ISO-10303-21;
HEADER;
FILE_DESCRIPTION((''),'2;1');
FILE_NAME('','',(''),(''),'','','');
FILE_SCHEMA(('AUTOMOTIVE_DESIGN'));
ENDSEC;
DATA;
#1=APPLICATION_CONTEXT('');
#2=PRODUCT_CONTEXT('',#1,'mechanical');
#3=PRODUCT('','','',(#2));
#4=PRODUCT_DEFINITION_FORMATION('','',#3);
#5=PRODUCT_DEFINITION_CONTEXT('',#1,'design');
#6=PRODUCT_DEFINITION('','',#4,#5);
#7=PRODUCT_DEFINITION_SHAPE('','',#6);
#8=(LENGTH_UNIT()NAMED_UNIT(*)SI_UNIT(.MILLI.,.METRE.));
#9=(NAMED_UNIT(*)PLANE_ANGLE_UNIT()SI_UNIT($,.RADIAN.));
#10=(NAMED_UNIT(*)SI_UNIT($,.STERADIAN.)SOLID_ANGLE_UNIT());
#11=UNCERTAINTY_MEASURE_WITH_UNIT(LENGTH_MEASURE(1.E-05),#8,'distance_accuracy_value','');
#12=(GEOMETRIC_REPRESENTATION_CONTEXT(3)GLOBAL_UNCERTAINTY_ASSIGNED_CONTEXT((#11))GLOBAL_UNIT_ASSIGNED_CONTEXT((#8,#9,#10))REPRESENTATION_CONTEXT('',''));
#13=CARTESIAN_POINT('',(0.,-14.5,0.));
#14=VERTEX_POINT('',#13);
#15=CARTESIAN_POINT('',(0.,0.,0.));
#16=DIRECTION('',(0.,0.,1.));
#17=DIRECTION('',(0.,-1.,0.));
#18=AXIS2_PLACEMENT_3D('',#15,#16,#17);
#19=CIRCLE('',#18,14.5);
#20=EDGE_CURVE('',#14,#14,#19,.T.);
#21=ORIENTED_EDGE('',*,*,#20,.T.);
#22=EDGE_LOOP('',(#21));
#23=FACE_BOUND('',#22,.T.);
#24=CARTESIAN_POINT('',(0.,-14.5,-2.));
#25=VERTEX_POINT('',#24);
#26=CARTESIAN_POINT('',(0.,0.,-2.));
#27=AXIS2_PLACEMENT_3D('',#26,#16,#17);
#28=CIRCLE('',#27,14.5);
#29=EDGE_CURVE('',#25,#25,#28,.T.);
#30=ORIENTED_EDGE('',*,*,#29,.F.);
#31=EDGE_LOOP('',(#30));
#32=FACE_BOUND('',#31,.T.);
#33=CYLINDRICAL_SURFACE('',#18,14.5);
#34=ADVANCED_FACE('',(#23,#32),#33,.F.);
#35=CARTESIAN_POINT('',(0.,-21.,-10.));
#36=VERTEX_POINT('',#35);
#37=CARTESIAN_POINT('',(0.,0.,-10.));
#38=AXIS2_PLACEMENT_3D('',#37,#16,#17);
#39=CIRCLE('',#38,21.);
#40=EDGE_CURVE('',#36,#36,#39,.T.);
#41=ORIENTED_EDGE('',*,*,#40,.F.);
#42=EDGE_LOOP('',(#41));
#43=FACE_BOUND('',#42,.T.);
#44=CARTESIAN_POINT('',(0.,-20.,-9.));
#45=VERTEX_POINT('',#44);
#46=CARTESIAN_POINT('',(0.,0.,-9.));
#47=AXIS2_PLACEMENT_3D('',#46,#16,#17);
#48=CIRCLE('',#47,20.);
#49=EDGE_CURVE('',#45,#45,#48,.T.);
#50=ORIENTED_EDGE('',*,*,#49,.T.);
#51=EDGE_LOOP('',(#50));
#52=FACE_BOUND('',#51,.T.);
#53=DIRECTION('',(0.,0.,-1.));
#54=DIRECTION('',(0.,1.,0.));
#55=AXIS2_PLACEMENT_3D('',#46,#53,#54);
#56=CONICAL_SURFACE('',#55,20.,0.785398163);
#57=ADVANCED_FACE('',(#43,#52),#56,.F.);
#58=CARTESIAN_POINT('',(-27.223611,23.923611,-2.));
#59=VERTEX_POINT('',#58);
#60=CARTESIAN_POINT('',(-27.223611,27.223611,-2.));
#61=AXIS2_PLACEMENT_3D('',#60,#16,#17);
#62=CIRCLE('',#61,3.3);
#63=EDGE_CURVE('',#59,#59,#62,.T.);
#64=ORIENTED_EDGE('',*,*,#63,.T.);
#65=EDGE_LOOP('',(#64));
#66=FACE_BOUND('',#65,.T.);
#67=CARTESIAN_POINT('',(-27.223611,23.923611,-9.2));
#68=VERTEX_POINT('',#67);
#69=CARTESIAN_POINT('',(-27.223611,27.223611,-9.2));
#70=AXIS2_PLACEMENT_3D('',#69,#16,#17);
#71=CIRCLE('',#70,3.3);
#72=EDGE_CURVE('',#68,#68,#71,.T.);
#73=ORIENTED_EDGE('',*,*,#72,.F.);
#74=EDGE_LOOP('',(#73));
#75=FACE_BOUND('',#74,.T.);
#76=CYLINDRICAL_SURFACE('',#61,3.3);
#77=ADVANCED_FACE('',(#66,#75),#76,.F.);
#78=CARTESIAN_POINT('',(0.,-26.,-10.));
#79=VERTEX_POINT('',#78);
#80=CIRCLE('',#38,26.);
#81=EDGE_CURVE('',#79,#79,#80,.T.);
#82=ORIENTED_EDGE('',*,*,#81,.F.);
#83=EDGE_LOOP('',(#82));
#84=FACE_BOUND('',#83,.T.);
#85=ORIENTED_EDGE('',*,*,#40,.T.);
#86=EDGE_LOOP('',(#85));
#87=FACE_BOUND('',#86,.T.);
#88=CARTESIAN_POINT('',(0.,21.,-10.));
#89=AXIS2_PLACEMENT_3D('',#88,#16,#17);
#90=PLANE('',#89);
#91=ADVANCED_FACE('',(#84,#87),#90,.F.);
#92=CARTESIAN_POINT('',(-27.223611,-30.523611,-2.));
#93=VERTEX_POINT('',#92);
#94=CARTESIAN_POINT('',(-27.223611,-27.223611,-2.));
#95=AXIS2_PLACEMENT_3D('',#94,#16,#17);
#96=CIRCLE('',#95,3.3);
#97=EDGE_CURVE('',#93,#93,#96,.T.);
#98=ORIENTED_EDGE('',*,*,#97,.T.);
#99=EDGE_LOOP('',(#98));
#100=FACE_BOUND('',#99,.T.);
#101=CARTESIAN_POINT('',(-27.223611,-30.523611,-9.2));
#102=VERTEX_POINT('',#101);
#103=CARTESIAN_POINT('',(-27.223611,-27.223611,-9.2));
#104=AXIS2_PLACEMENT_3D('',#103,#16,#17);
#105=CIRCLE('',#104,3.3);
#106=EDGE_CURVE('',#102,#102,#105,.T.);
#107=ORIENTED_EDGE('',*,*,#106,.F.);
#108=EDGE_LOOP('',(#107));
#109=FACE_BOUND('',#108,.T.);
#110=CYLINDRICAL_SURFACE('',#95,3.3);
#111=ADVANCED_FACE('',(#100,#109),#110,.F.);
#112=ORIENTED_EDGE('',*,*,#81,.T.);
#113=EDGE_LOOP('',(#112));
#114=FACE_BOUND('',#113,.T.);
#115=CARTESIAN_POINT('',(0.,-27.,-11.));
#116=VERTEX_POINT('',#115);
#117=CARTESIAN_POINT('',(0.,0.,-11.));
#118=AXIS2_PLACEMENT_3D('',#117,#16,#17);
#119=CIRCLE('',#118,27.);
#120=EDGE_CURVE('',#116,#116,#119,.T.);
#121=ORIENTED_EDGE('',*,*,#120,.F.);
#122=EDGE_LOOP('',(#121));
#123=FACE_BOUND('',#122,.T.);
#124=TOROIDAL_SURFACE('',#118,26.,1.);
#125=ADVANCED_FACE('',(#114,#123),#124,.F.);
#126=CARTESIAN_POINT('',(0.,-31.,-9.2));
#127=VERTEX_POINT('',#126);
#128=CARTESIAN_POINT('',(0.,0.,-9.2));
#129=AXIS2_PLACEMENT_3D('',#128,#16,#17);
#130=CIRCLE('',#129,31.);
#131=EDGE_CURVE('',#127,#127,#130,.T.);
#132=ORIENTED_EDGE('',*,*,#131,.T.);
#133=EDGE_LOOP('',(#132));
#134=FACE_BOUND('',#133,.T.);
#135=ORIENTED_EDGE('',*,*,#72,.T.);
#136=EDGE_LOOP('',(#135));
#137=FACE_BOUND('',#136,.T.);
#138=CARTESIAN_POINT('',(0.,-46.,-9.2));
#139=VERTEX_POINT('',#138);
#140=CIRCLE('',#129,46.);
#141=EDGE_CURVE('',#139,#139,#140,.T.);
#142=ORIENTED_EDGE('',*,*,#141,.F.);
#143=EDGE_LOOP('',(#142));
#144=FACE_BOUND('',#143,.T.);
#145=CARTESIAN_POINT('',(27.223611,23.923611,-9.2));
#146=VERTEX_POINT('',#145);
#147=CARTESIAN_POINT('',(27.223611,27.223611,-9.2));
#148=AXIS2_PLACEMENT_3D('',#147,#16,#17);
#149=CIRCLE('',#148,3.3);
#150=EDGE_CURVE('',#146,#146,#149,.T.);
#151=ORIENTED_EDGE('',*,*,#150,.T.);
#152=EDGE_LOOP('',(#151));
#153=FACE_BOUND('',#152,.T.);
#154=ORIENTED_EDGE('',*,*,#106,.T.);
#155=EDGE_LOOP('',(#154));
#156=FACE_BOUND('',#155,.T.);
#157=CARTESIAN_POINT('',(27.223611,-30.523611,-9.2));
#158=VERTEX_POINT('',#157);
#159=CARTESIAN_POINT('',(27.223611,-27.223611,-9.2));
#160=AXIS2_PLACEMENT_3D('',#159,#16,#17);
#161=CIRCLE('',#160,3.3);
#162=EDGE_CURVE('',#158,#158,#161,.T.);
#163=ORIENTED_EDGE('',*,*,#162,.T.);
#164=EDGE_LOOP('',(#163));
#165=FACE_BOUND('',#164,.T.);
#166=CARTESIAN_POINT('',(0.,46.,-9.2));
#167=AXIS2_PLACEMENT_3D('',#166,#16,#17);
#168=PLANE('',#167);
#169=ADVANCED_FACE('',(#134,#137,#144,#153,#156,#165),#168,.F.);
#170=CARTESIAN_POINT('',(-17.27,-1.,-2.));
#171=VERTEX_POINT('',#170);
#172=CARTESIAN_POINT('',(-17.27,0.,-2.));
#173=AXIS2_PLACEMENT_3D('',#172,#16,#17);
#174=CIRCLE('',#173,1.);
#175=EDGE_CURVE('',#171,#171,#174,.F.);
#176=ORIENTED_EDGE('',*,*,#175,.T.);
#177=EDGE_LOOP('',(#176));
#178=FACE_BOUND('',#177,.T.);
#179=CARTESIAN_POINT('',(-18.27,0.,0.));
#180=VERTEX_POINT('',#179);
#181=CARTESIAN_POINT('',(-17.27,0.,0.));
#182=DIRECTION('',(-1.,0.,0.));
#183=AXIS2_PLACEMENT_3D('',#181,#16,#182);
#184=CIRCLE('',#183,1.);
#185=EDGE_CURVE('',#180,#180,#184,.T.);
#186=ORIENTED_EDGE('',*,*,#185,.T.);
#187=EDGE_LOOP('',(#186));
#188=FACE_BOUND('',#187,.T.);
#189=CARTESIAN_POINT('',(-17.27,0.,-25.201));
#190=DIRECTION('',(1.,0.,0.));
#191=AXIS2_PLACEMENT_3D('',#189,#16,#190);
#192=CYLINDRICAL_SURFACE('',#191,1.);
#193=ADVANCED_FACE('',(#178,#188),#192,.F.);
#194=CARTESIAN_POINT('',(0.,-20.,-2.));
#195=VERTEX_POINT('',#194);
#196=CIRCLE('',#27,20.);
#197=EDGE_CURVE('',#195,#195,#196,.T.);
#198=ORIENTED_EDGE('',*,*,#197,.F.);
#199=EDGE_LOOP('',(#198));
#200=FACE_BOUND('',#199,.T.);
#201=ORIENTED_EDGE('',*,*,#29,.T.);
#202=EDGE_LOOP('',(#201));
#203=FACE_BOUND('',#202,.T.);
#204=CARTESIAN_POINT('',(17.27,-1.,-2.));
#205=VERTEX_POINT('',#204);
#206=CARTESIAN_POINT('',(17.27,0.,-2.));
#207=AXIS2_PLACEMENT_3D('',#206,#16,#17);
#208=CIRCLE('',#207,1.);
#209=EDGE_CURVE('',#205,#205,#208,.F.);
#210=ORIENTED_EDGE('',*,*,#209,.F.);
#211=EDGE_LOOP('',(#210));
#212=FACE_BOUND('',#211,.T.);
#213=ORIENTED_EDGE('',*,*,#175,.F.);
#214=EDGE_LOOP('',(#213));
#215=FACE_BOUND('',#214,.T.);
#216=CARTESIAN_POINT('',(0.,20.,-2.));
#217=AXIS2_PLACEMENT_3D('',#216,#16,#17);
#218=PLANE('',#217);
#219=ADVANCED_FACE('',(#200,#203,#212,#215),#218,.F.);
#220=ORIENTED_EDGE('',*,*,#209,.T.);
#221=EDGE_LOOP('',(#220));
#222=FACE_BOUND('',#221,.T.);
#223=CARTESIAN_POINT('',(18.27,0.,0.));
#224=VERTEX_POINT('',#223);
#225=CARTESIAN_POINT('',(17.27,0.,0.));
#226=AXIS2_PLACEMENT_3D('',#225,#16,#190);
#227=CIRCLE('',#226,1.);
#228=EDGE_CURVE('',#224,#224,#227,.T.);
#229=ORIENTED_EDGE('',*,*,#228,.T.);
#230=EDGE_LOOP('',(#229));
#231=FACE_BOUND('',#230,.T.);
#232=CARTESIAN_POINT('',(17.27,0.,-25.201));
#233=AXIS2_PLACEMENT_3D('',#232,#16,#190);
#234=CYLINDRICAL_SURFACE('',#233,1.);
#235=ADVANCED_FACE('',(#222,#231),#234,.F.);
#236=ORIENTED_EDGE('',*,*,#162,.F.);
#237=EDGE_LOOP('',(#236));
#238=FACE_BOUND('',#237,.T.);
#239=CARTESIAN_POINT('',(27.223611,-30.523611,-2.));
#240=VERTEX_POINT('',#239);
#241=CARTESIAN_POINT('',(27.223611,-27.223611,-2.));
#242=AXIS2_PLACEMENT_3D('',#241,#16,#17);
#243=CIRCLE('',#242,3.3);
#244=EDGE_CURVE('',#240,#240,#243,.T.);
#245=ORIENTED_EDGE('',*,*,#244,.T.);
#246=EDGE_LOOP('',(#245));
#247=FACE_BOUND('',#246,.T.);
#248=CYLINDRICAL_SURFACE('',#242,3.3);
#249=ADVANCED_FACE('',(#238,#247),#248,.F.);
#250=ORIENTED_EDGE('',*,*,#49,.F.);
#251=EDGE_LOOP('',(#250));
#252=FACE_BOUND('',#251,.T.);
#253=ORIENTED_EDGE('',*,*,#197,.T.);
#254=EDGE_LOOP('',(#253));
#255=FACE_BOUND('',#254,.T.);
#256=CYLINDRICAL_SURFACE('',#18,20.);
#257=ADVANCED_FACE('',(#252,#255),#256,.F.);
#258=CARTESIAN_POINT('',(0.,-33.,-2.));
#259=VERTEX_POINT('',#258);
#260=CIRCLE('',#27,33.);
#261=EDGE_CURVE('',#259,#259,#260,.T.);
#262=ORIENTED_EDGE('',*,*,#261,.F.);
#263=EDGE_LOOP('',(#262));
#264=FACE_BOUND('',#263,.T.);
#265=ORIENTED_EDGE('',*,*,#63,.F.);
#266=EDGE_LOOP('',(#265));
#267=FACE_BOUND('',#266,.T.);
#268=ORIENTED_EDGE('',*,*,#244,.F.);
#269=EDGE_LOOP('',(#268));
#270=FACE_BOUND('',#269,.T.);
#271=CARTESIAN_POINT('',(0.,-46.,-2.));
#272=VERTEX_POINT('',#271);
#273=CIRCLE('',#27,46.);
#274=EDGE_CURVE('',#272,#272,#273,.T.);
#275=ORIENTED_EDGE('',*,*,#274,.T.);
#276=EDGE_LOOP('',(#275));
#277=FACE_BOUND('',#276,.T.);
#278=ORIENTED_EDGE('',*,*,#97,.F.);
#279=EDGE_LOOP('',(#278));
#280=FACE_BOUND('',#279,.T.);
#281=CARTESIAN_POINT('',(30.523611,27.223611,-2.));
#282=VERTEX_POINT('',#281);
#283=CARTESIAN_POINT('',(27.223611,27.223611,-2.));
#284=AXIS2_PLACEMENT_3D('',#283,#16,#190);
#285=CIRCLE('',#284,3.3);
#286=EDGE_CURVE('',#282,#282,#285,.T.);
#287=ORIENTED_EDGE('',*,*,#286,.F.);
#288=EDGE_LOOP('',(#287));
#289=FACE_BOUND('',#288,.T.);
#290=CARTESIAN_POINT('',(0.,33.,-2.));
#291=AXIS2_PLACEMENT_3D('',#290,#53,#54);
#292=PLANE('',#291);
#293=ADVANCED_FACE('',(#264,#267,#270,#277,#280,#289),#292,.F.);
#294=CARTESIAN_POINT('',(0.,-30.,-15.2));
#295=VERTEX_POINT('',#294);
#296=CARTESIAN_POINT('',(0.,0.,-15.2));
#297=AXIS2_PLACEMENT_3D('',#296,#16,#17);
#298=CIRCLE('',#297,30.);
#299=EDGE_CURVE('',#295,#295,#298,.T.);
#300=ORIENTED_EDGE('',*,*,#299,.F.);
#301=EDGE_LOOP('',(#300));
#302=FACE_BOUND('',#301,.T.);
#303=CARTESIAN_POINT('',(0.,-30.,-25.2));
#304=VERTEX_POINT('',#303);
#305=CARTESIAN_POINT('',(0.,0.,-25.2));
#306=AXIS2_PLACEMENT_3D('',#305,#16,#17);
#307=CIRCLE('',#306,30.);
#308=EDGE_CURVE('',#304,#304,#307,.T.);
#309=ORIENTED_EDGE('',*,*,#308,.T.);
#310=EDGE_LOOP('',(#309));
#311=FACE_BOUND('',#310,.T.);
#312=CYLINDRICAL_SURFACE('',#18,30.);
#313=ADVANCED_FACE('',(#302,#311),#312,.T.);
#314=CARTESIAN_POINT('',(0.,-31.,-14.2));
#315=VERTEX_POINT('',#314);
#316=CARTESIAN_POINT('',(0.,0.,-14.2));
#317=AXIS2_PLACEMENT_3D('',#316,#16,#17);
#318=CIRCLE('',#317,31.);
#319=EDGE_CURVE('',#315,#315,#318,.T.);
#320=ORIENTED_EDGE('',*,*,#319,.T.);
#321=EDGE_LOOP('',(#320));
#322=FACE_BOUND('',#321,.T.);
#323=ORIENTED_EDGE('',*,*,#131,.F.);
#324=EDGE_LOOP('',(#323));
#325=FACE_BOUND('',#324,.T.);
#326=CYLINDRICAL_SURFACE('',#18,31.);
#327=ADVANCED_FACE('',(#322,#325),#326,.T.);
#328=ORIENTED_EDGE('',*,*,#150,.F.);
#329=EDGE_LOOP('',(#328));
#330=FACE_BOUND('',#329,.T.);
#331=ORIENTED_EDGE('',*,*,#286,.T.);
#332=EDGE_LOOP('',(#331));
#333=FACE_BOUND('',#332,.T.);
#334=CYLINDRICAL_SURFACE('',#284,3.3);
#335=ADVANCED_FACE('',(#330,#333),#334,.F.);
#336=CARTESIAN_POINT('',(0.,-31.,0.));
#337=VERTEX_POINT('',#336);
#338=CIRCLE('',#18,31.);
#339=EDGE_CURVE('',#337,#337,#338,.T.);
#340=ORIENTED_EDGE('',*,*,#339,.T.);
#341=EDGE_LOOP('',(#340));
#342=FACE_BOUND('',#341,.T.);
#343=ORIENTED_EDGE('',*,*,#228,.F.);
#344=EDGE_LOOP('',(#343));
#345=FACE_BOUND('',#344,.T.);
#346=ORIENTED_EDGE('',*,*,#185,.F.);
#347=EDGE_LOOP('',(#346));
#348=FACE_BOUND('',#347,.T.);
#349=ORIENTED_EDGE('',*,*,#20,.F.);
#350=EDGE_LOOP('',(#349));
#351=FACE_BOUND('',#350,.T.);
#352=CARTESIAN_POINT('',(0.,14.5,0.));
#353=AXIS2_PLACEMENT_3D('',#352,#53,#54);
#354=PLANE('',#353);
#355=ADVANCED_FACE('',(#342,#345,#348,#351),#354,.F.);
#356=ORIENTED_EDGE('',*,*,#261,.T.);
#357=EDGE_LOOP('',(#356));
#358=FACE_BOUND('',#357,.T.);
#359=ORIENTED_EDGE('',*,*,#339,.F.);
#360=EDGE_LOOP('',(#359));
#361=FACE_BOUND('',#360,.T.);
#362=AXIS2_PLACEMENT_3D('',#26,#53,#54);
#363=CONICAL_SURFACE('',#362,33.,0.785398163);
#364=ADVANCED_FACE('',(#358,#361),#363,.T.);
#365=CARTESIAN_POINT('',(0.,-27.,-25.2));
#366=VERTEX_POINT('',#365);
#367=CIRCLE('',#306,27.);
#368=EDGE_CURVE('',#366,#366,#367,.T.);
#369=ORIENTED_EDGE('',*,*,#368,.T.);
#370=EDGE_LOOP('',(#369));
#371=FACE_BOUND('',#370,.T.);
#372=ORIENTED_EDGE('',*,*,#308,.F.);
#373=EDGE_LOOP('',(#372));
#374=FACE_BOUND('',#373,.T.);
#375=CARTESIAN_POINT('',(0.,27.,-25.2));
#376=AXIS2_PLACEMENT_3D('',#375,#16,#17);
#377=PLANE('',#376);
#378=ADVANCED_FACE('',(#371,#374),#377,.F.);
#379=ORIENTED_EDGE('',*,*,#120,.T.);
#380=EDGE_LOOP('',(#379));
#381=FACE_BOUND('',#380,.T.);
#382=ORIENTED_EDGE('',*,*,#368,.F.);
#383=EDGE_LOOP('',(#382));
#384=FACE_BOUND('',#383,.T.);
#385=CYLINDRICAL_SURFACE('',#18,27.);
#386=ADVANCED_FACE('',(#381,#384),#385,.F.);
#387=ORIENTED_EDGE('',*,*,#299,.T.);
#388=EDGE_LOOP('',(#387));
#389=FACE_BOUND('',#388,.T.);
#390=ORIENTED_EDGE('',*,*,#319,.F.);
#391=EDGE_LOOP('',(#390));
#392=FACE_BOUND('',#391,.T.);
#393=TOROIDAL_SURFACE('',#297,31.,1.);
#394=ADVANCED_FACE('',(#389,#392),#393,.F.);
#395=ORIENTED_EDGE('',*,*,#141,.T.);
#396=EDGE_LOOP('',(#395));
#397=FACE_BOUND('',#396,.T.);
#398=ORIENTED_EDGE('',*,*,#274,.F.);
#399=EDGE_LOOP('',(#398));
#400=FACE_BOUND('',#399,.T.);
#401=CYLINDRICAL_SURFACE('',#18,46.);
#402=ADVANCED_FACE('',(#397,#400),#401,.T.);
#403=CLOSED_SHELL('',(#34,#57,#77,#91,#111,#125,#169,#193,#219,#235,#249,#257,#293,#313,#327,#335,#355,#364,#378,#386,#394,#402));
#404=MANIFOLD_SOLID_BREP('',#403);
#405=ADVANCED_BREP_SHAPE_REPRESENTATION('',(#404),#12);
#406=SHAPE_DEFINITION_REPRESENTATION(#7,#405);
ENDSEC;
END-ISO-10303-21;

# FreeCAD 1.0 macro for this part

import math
import FreeCAD as App
import Part
import Sketcher
Q = App.Units.Quantity

doc = App.newDocument("Part")
body = doc.addObject("PartDesign::Body", "Body")

# Sketch on YZ plane
sketch1 = body.newObject("Sketcher::SketchObject", "Sketch")
sketch1.AttachmentSupport = (doc.getObject("YZ_Plane"), [""])
sketch1.MapMode = "FlatFace"
sketch1.addGeometry(Part.LineSegment(App.Vector(31, 0, 0), App.Vector(14.5, 0, 0)), False)
sketch1.addGeometry(Part.LineSegment(App.Vector(14.5, 0, 0), App.Vector(14.5, -2, 0)), False)
sketch1.addGeometry(Part.LineSegment(App.Vector(14.5, -2, 0), App.Vector(20, -2, 0)), False)
sketch1.addGeometry(Part.LineSegment(App.Vector(20, -2, 0), App.Vector(20, -9, 0)), False)
sketch1.addGeometry(Part.LineSegment(App.Vector(20, -9, 0), App.Vector(21, -10, 0)), False)
sketch1.addGeometry(Part.LineSegment(App.Vector(21, -10, 0), App.Vector(26, -10, 0)), False)
sketch1.addGeometry(Part.ArcOfCircle(Part.Circle(App.Vector(26, -11, 0), App.Vector(0, 0, 1), 1), math.radians(0), math.radians(90)), False)
sketch1.addGeometry(Part.LineSegment(App.Vector(27, -11, 0), App.Vector(27, -25.2, 0)), False)
sketch1.addGeometry(Part.LineSegment(App.Vector(27, -25.2, 0), App.Vector(30, -25.2, 0)), False)
sketch1.addGeometry(Part.LineSegment(App.Vector(30, -25.2, 0), App.Vector(30, -15.2, 0)), False)
sketch1.addGeometry(Part.ArcOfCircle(Part.Circle(App.Vector(31, -15.2, 0), App.Vector(0, 0, 1), 1), math.radians(90), math.radians(180)), False)
sketch1.addGeometry(Part.LineSegment(App.Vector(31, -14.2, 0), App.Vector(31, -9.2, 0)), False)
sketch1.addGeometry(Part.LineSegment(App.Vector(31, -9.2, 0), App.Vector(46, -9.2, 0)), False)
sketch1.addGeometry(Part.LineSegment(App.Vector(46, -9.2, 0), App.Vector(46, -2, 0)), False)
sketch1.addGeometry(Part.LineSegment(App.Vector(46, -2, 0), App.Vector(33, -2, 0)), False)
sketch1.addGeometry(Part.LineSegment(App.Vector(33, -2, 0), App.Vector(31, 0, 0)), False)
sketch1.addConstraint(Sketcher.Constraint("Coincident", 0, 2, 1, 1))
sketch1.addConstraint(Sketcher.Constraint("Coincident", 1, 2, 2, 1))
sketch1.addConstraint(Sketcher.Constraint("Coincident", 2, 2, 3, 1))
sketch1.addConstraint(Sketcher.Constraint("Coincident", 3, 2, 4, 1))
sketch1.addConstraint(Sketcher.Constraint("Coincident", 4, 2, 5, 1))
sketch1.addConstraint(Sketcher.Constraint("Tangent", 5, 2, 6, 2))
sketch1.addConstraint(Sketcher.Constraint("Tangent", 6, 1, 7, 1))
sketch1.addConstraint(Sketcher.Constraint("Coincident", 7, 2, 8, 1))
sketch1.addConstraint(Sketcher.Constraint("Coincident", 8, 2, 9, 1))
sketch1.addConstraint(Sketcher.Constraint("Tangent", 9, 2, 10, 2))
sketch1.addConstraint(Sketcher.Constraint("Coincident", 10, 1, 11, 1))
sketch1.addConstraint(Sketcher.Constraint("Coincident", 11, 2, 12, 1))
sketch1.addConstraint(Sketcher.Constraint("Coincident", 12, 2, 13, 1))
sketch1.addConstraint(Sketcher.Constraint("Coincident", 13, 2, 14, 1))
sketch1.addConstraint(Sketcher.Constraint("Coincident", 14, 2, 15, 1))
sketch1.addConstraint(Sketcher.Constraint("Coincident", 15, 2, 0, 1))
sketch1.addConstraint(Sketcher.Constraint("Horizontal", 0))
sketch1.addConstraint(Sketcher.Constraint("Vertical", 1))
sketch1.addConstraint(Sketcher.Constraint("Horizontal", 2))
sketch1.addConstraint(Sketcher.Constraint("Vertical", 3))
sketch1.addConstraint(Sketcher.Constraint("Horizontal", 5))
sketch1.addConstraint(Sketcher.Constraint("Vertical", 7))
sketch1.addConstraint(Sketcher.Constraint("Horizontal", 8))
sketch1.addConstraint(Sketcher.Constraint("Vertical", 9))
sketch1.addConstraint(Sketcher.Constraint("Vertical", 11))
sketch1.addConstraint(Sketcher.Constraint("Horizontal", 12))
sketch1.addConstraint(Sketcher.Constraint("Vertical", 13))
sketch1.addConstraint(Sketcher.Constraint("Horizontal", 14))
sketch1.addConstraint(Sketcher.Constraint("Equal", 6, 10))
sketch1.addConstraint(Sketcher.Constraint("PointOnObject", 0, 2, -1))
sketch1.addConstraint(Sketcher.Constraint("Parallel", 4, 15))
sketch1.addConstraint(Sketcher.Constraint("Horizontal", 2, 2, 13, 2))
sketch1.addConstraint(Sketcher.Constraint("Vertical", 11, 2, 15, 2))
sketch1.addConstraint(Sketcher.Constraint("Equal", 5, 11))
sketch1.addConstraint(Sketcher.Constraint("Radius", 6, Q("1 mm")))
sketch1.addConstraint(Sketcher.Constraint("DistanceX", 5, 1, 5, 2, Q("5 mm")))
sketch1.addConstraint(Sketcher.Constraint("DistanceX", 8, 1, 8, 2, Q("3 mm")))
sketch1.addConstraint(Sketcher.Constraint("DistanceX", 12, 1, 12, 2, Q("15 mm")))
sketch1.addConstraint(Sketcher.Constraint("DistanceX", 14, 2, 14, 1, Q("13 mm")))
sketch1.addConstraint(Sketcher.Constraint("DistanceY", 1, 2, 1, 1, Q("2 mm")))
sketch1.addConstraint(Sketcher.Constraint("DistanceY", 3, 2, 3, 1, Q("7 mm")))
sketch1.addConstraint(Sketcher.Constraint("DistanceY", 9, 1, 9, 2, Q("10 mm")))
sketch1.addConstraint(Sketcher.Constraint("DistanceX", 0, 2, 0, 1, Q("16.5 mm")))
sketch1.addConstraint(Sketcher.Constraint("DistanceX", 2, 1, 2, 2, Q("5.5 mm")))
sketch1.addConstraint(Sketcher.Constraint("DistanceY", 7, 2, 7, 1, Q("14.2 mm")))
sketch1.addConstraint(Sketcher.Constraint("DistanceY", 13, 1, 13, 2, Q("7.2 mm")))
sketch1.addConstraint(Sketcher.Constraint("DistanceX", -1, 1, 6, 3, Q("26 mm")))
revolution = body.newObject("PartDesign::Revolution", "Revolution")
revolution.Profile = sketch1
revolution.ReferenceAxis = (sketch1, ["V_Axis"])
revolution.Angle = 360

# Sketch on XY plane
sketch2 = body.newObject("Sketcher::SketchObject", "Sketch001")
sketch2.AttachmentSupport = (doc.getObject("XY_Plane"), [""])
sketch2.MapMode = "FlatFace"
sketch2.AttachmentOffset = App.Placement(App.Vector(0, 0, -2), App.Rotation())
sketch2.addGeometry(Part.Circle(App.Vector(27.2, 27.2, 0), App.Vector(0, 0, 1), 3.3), False)
sketch2.addConstraint(Sketcher.Constraint("Diameter", 0, Q("6.6 mm")))
sketch2.addConstraint(Sketcher.Constraint("DistanceX", -1, 1, 0, 3, Q("27.223611 mm")))
sketch2.addConstraint(Sketcher.Constraint("DistanceY", -1, 1, 0, 3, Q("27.223611 mm")))
doc.recompute()
hole = body.newObject("PartDesign::Hole", "Hole")
hole.Profile = sketch2
hole.ThreadType = "None"
hole.Diameter = 6.6
hole.DepthType = "ThroughAll"
doc.recompute()

polarpattern = body.newObject("PartDesign::PolarPattern", "PolarPattern")
polarpattern.Originals = [hole]
polarpattern.Axis = (doc.getObject("Z_Axis"), [""])
polarpattern.Angle = 360
polarpattern.Occurrences = 4
body.Tip = polarpattern

# Sketch on XY plane
sketch3 = body.newObject("Sketcher::SketchObject", "Sketch002")
sketch3.AttachmentSupport = (doc.getObject("XY_Plane"), [""])
sketch3.MapMode = "FlatFace"
sketch3.addGeometry(Part.Circle(App.Vector(17.3, 0, 0), App.Vector(0, 0, 1), 1), False)
sketch3.addConstraint(Sketcher.Constraint("PointOnObject", 0, 3, -1))
sketch3.addConstraint(Sketcher.Constraint("Diameter", 0, Q("2 mm")))
sketch3.addConstraint(Sketcher.Constraint("DistanceX", -1, 1, 0, 3, Q("17.27 mm")))
pocket1 = body.newObject("PartDesign::Pocket", "Pocket")
pocket1.Profile = sketch3
pocket1.Type = "UpToFirst"

# Sketch on XY plane
sketch4 = body.newObject("Sketcher::SketchObject", "Sketch003")
sketch4.AttachmentSupport = (doc.getObject("XY_Plane"), [""])
sketch4.MapMode = "FlatFace"
sketch4.addGeometry(Part.Circle(App.Vector(-17.3, 0, 0), App.Vector(0, 0, 1), 1), False)
sketch4.addConstraint(Sketcher.Constraint("PointOnObject", 0, 3, -1))
sketch4.addConstraint(Sketcher.Constraint("Diameter", 0, Q("2 mm")))
sketch4.addConstraint(Sketcher.Constraint("DistanceX", 0, 3, -1, 1, Q("17.27 mm")))
pocket2 = body.newObject("PartDesign::Pocket", "Pocket001")
pocket2.Profile = sketch4
pocket2.Type = "UpToFirst"

doc.recompute()
